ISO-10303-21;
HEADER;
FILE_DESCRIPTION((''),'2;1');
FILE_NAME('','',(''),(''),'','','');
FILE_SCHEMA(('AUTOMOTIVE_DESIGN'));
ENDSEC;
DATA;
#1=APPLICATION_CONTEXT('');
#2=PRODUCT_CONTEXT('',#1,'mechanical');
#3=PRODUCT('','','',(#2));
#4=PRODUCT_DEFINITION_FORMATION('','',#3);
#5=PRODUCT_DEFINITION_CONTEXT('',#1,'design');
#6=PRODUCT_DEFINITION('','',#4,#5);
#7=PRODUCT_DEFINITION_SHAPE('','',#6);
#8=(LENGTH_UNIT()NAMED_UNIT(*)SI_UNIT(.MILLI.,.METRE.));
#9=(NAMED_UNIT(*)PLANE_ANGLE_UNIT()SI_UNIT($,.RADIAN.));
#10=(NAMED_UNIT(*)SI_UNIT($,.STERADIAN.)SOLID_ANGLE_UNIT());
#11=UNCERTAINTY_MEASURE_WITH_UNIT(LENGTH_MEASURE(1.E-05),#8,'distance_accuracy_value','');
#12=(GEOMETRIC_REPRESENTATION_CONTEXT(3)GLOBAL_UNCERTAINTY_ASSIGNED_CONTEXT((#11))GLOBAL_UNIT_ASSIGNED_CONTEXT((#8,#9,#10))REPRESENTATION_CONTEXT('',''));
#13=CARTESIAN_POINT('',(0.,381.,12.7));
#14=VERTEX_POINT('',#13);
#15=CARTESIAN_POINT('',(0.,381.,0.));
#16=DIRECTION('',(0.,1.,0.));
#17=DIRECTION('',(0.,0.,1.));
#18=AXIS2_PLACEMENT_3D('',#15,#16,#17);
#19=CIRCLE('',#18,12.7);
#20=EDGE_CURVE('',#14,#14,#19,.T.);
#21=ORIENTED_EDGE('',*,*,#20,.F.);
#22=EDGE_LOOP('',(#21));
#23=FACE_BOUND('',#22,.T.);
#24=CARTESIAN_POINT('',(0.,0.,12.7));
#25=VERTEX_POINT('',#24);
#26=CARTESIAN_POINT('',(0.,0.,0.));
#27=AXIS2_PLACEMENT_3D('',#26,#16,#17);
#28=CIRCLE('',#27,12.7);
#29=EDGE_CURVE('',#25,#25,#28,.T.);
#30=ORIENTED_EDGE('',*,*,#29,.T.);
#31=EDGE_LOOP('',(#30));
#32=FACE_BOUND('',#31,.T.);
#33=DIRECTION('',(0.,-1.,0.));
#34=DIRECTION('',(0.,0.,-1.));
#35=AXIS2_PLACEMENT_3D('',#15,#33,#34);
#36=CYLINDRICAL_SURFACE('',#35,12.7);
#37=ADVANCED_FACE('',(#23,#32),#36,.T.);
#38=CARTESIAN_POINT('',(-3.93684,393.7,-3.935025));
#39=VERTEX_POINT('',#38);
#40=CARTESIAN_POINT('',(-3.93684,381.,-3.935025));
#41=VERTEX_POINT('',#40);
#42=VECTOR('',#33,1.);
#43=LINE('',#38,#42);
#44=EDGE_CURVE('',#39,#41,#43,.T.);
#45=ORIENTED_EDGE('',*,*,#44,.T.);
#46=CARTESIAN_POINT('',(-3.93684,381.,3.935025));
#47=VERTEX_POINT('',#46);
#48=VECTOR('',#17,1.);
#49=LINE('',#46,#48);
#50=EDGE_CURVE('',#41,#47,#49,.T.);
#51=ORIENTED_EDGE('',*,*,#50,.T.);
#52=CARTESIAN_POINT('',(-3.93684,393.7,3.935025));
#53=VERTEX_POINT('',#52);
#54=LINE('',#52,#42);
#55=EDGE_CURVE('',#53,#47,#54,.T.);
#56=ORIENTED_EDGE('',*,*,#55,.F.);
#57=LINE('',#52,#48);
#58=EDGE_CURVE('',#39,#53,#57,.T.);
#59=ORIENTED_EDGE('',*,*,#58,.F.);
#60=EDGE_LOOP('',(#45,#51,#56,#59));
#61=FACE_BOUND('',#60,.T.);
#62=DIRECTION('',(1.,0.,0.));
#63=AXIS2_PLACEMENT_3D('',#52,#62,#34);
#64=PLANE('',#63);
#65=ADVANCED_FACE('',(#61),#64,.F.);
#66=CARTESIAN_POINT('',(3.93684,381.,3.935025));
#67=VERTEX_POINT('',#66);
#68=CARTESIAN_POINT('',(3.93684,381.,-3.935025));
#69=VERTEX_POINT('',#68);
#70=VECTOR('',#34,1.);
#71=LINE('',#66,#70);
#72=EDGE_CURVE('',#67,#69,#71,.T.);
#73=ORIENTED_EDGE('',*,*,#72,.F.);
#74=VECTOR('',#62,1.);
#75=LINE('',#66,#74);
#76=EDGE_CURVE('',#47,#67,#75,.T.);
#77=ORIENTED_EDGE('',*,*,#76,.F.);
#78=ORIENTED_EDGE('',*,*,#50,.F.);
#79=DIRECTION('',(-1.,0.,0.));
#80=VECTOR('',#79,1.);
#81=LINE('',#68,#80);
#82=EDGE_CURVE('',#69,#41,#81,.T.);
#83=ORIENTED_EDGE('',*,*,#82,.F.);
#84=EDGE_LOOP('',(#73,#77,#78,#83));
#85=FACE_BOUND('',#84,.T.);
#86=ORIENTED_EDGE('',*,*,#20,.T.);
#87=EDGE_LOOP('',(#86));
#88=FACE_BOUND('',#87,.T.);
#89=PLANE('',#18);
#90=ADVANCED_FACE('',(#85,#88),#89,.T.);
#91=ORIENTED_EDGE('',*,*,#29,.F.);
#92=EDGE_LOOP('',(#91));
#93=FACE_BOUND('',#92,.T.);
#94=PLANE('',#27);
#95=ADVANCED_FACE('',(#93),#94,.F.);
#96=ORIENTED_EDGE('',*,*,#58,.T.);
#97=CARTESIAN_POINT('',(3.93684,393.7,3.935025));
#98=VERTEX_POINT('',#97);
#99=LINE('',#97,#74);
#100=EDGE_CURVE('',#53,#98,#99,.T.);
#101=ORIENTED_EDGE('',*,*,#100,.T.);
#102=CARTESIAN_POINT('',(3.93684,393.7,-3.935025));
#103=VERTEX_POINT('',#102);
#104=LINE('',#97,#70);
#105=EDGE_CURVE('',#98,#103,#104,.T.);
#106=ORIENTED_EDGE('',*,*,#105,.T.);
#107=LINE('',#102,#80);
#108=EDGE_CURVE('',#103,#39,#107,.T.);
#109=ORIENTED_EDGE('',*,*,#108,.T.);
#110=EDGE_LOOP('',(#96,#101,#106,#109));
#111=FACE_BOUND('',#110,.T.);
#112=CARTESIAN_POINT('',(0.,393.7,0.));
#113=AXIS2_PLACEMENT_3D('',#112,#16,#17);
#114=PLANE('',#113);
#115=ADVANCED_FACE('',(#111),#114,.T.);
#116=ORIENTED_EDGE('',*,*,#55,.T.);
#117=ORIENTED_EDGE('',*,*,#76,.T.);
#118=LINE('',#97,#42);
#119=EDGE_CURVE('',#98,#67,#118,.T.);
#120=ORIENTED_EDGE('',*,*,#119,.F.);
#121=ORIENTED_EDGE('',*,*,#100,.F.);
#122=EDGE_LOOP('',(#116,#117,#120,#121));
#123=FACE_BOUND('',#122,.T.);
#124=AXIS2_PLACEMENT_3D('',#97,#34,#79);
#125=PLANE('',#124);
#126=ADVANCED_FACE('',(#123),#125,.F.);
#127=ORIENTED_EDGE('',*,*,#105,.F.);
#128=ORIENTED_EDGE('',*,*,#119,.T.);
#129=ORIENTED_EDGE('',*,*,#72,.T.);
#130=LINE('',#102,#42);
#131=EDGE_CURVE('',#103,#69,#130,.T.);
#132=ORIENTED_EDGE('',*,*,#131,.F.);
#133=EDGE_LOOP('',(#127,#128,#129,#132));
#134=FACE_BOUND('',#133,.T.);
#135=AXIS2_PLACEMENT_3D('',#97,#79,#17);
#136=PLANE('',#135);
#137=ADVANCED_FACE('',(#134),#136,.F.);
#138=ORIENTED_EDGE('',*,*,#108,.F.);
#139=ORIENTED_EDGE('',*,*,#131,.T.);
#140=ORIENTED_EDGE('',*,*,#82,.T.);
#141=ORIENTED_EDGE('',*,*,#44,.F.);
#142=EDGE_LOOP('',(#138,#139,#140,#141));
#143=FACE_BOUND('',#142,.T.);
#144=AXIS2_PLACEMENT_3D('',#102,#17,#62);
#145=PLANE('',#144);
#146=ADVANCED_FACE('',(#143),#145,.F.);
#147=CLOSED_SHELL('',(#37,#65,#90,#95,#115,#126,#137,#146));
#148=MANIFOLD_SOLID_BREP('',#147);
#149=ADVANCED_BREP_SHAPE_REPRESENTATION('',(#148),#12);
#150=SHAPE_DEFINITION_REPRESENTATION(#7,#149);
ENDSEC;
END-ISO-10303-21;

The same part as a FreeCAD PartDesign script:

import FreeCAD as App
import Part
import Sketcher
from FreeCAD import Vector
Q = App.Units.Quantity

doc = App.newDocument("Part")
body = doc.addObject("PartDesign::Body", "Body")

sketch1 = body.newObject("Sketcher::SketchObject", "Sketch")
sketch1.AttachmentSupport = (doc.getObject("XZ_Plane"), [""])
sketch1.MapMode = "FlatFace"
sketch1.addGeometry(Part.Circle(Vector(0, 0, 0), Vector(0, 0, 1), 12.7), False)
sketch1.addConstraint([
    Sketcher.Constraint("Coincident", 0, 3, -1, 1),
    Sketcher.Constraint("Diameter", 0, Q("1 in")),
])
pad1 = body.newObject("PartDesign::Pad", "Pad")
pad1.Profile = sketch1
pad1.Length = Q("15 in")
pad1.Reversed = True

sketch2 = body.newObject("Sketcher::SketchObject", "Sketch001")
sketch2.AttachmentSupport = (doc.getObject("XZ_Plane"), [""])
sketch2.MapMode = "FlatFace"
sketch2.AttachmentOffset = App.Placement(Vector(0, 0, -15 * 25.4), App.Rotation())
sketch2.addGeometry([
    Part.LineSegment(Vector(-3.93684, -3.935025, 0), Vector(-3.93684, 3.935025, 0)),
    Part.LineSegment(Vector(-3.93684, 3.935025, 0), Vector(3.93684, 3.935025, 0)),
    Part.LineSegment(Vector(3.93684, 3.935025, 0), Vector(3.93684, -3.935025, 0)),
    Part.LineSegment(Vector(3.93684, -3.935025, 0), Vector(-3.93684, -3.935025, 0)),
], False)
sketch2.addConstraint([
    Sketcher.Constraint("Coincident", 0, 2, 1, 1),
    Sketcher.Constraint("Coincident", 1, 2, 2, 1),
    Sketcher.Constraint("Coincident", 2, 2, 3, 1),
    Sketcher.Constraint("Coincident", 3, 2, 0, 1),
    Sketcher.Constraint("Vertical", 0),
    Sketcher.Constraint("Horizontal", 1),
    Sketcher.Constraint("Vertical", 2),
    Sketcher.Constraint("Horizontal", 3),
    Sketcher.Constraint("Symmetric", 0, 2, 2, 2, -1, 1),
    Sketcher.Constraint("DistanceX", 1, 1, 1, 2, Q("7.873679 mm")),
    Sketcher.Constraint("DistanceY", 0, 1, 0, 2, Q("7.870049 mm")),
])
pad2 = body.newObject("PartDesign::Pad", "Pad001")
pad2.Profile = sketch2
pad2.Length = Q("0.5 in")
pad2.Reversed = True

doc.recompute()
